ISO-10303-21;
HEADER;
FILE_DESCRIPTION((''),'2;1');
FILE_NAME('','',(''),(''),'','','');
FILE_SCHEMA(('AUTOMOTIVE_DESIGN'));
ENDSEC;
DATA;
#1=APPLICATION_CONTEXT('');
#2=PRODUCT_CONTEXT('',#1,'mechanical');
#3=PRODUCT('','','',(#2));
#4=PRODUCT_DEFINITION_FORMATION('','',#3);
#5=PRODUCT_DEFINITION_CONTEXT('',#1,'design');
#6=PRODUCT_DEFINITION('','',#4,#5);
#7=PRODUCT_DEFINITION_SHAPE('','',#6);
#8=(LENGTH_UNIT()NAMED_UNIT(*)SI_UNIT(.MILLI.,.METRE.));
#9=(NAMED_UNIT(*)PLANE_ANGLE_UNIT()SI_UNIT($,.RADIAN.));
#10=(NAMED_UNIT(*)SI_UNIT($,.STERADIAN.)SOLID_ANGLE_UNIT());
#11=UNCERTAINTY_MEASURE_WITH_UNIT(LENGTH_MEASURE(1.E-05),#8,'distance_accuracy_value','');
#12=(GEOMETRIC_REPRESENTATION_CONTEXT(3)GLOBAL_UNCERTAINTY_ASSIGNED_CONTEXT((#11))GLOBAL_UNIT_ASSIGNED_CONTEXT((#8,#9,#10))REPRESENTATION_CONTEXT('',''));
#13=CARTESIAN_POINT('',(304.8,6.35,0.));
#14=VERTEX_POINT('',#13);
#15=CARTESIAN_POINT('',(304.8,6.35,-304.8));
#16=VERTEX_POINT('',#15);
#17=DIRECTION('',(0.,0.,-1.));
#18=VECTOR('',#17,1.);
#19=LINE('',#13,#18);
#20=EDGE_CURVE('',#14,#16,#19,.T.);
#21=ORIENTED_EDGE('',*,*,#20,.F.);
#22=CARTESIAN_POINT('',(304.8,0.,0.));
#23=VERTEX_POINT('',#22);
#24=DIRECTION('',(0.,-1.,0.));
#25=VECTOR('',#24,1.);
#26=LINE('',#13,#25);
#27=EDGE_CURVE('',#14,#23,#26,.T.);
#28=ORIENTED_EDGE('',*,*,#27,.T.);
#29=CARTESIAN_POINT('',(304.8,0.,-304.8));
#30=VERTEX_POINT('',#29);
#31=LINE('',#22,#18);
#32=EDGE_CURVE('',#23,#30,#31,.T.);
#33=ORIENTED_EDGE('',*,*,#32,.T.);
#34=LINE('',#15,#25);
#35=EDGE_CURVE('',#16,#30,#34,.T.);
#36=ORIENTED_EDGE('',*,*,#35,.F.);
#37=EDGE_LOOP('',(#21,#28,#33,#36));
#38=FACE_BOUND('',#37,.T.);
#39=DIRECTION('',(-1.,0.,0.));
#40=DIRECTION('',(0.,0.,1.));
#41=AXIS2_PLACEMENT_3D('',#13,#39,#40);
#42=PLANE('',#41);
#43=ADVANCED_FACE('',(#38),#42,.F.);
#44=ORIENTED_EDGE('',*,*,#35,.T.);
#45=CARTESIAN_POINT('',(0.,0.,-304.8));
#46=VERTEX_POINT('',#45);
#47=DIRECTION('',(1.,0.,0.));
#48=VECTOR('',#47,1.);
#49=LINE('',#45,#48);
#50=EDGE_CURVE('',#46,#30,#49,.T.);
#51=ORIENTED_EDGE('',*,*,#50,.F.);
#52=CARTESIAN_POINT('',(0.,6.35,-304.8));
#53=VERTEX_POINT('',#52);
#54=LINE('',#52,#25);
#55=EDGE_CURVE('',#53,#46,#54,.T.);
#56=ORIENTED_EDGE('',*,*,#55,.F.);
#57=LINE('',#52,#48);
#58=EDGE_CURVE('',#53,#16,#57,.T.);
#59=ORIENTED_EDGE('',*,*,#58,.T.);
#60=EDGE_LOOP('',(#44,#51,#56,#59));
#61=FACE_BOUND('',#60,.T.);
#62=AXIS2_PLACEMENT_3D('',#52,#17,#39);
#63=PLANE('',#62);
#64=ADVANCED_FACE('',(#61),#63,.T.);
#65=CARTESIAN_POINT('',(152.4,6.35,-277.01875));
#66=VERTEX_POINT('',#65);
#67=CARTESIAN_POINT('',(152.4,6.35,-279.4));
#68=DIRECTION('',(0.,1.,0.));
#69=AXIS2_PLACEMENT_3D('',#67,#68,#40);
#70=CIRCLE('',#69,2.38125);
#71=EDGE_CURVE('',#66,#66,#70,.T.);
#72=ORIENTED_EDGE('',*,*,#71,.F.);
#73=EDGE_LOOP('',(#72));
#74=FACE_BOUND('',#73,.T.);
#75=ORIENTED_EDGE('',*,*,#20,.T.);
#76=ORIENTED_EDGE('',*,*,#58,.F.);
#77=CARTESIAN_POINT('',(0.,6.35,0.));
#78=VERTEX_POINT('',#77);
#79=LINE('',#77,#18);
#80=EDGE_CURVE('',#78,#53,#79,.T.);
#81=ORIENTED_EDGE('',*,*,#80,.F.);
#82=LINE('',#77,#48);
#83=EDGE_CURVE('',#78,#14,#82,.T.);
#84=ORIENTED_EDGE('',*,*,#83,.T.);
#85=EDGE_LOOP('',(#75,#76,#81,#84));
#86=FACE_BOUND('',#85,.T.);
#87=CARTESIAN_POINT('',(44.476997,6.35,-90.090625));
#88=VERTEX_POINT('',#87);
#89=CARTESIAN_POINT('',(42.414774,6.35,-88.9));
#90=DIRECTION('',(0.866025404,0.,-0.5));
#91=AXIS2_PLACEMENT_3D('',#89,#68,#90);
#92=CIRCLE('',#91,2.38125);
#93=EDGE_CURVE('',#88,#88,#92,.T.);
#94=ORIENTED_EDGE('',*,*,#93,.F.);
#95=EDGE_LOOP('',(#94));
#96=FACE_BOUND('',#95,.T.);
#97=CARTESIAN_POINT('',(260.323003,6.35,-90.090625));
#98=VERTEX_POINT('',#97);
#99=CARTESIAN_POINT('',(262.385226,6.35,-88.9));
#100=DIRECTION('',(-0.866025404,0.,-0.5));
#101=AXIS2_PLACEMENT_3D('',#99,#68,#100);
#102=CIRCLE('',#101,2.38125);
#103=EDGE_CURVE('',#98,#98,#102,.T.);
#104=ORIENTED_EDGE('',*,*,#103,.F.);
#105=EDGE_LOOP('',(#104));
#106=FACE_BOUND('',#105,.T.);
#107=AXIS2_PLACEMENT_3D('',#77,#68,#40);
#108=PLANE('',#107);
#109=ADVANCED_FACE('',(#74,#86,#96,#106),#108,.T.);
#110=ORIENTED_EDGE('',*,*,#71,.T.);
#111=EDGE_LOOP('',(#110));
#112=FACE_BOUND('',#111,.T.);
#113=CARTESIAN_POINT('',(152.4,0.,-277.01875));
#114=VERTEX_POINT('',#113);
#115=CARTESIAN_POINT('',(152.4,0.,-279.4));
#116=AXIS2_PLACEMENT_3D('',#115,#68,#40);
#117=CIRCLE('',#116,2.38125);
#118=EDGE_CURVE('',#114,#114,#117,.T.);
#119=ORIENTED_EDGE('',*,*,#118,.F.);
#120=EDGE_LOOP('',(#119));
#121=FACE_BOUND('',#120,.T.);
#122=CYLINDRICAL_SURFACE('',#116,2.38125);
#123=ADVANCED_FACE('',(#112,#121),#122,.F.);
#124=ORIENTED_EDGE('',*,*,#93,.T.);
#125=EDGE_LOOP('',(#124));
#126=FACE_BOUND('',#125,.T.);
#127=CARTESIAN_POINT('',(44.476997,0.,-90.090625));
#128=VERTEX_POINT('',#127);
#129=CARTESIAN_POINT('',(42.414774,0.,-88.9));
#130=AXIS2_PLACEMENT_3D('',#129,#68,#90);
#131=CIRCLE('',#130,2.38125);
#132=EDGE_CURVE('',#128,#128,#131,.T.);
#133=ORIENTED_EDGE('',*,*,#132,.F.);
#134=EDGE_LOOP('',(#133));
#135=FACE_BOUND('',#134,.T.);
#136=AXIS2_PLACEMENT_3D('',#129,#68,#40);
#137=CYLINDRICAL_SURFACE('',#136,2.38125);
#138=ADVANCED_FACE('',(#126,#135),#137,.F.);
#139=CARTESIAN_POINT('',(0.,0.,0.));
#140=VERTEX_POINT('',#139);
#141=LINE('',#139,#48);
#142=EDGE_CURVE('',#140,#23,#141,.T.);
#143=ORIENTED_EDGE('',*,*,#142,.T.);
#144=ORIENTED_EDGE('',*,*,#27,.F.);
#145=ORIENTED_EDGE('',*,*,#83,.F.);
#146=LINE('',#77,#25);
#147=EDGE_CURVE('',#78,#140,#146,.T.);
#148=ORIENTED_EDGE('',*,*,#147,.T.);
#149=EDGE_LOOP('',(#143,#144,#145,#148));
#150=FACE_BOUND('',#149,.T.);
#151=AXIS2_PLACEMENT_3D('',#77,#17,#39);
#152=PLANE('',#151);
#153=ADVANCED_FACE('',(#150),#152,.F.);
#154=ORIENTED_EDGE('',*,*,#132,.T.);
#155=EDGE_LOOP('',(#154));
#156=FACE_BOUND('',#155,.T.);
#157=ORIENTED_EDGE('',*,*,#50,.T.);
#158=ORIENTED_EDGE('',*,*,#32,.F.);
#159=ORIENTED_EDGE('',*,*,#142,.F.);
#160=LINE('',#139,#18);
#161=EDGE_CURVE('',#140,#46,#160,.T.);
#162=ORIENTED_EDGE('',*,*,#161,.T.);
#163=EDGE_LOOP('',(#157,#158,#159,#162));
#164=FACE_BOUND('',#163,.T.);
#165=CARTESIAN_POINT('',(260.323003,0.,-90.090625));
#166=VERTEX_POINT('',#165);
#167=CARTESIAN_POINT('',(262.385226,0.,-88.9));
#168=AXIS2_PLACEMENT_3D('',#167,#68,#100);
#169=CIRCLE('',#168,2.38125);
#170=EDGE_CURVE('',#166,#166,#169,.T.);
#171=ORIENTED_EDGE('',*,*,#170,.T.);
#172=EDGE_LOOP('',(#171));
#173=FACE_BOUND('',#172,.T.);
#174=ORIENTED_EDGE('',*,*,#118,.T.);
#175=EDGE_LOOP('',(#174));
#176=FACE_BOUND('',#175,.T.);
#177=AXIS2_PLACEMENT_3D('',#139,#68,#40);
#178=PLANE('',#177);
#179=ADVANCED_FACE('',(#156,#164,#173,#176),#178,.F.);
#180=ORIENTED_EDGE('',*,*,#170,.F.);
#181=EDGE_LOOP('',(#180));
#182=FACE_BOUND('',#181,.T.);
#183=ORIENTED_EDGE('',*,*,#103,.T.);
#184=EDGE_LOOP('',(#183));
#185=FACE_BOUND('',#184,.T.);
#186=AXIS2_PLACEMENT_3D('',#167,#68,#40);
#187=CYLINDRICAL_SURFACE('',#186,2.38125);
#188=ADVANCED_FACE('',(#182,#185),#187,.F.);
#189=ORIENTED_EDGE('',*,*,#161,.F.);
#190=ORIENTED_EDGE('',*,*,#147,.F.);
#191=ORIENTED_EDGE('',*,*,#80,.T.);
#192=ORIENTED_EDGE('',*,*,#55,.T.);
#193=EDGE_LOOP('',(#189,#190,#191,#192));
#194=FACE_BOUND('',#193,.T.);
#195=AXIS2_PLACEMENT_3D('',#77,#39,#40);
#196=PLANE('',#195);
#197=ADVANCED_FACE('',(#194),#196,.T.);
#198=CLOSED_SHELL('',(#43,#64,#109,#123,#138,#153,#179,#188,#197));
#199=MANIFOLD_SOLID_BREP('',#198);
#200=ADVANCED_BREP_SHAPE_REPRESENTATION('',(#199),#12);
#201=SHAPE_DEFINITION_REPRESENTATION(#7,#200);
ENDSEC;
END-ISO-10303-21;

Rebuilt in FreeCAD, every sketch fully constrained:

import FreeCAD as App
import Part
import Sketcher
Q = App.Units.Quantity


def add_polygon(sketch, points):
    """Adds a closed chain of lines whose ends are joined by coincident constraints."""
    first, n = sketch.GeometryCount, len(points)
    for a, b in zip(points, points[1:] + points[:1]):
        sketch.addGeometry(Part.LineSegment(App.Vector(*a, 0), App.Vector(*b, 0)), False)
    for i in range(n):
        sketch.addConstraint(Sketcher.Constraint("Coincident", first + i, 2, first + (i + 1) % n, 1))

doc = App.newDocument("Part")
body = doc.addObject("PartDesign::Body", "Body")

# Sketch on XZ plane
sketch1 = body.newObject("Sketcher::SketchObject", "Sketch")
sketch1.AttachmentSupport = (doc.getObject("XZ_Plane"), [""])
sketch1.MapMode = "FlatFace"
add_polygon(sketch1, [(0, -305), (0, 0), (305, 0), (305, -305)])  # lines 0-3
sketch1.addConstraint([
    Sketcher.Constraint("Vertical", 0),
    Sketcher.Constraint("Horizontal", 1),
    Sketcher.Constraint("Vertical", 2),
    Sketcher.Constraint("Horizontal", 3),
    Sketcher.Constraint("Coincident", 0, 2, -1, 1),
    Sketcher.Constraint("Equal", 3, 0),
    Sketcher.Constraint("DistanceX", 1, 1, 1, 2, Q("12 in")),
])
pad1 = body.newObject("PartDesign::Pad", "Pad")
pad1.Profile = sketch1
pad1.Length = Q("0.25 in")
pad1.Reversed = True

# Sketch on XZ plane
sketch2 = body.newObject("Sketcher::SketchObject", "Sketch001")
sketch2.AttachmentSupport = (doc.getObject("XZ_Plane"), [""])
sketch2.MapMode = "FlatFace"
sketch2.AttachmentOffset = App.Placement(App.Vector(0, 0, -0.25 * 25.4), App.Rotation())
sketch2.addGeometry(Part.Circle(App.Vector(152.4, -279.4, 0), App.Vector(0, 0, 1), 2.4), False)
sketch2.addConstraint([
    Sketcher.Constraint("Diameter", 0, Q("0.1875 in")),
    Sketcher.Constraint("DistanceX", -1, 1, 0, 3, Q("6 in")),
    Sketcher.Constraint("DistanceY", 0, 3, -1, 1, Q("11 in")),
])
pocket1 = body.newObject("PartDesign::Pocket", "Pocket")
pocket1.Profile = sketch2
pocket1.Length = Q("0.25 in")
pocket1.Reversed = True
doc.recompute()

datumline = body.newObject("PartDesign::Line", "DatumLine")
datumline.Placement = App.Placement(App.Vector(152.4, 0, -152.4), App.Rotation(App.Vector(0, 0, 1), App.Vector(0, 1, 0)))
polarpattern = body.newObject("PartDesign::PolarPattern", "PolarPattern")
polarpattern.Originals = [pocket1]
polarpattern.Axis = (datumline, [""])
polarpattern.Angle = 360
polarpattern.Occurrences = 3
body.Tip = polarpattern

doc.recompute()
